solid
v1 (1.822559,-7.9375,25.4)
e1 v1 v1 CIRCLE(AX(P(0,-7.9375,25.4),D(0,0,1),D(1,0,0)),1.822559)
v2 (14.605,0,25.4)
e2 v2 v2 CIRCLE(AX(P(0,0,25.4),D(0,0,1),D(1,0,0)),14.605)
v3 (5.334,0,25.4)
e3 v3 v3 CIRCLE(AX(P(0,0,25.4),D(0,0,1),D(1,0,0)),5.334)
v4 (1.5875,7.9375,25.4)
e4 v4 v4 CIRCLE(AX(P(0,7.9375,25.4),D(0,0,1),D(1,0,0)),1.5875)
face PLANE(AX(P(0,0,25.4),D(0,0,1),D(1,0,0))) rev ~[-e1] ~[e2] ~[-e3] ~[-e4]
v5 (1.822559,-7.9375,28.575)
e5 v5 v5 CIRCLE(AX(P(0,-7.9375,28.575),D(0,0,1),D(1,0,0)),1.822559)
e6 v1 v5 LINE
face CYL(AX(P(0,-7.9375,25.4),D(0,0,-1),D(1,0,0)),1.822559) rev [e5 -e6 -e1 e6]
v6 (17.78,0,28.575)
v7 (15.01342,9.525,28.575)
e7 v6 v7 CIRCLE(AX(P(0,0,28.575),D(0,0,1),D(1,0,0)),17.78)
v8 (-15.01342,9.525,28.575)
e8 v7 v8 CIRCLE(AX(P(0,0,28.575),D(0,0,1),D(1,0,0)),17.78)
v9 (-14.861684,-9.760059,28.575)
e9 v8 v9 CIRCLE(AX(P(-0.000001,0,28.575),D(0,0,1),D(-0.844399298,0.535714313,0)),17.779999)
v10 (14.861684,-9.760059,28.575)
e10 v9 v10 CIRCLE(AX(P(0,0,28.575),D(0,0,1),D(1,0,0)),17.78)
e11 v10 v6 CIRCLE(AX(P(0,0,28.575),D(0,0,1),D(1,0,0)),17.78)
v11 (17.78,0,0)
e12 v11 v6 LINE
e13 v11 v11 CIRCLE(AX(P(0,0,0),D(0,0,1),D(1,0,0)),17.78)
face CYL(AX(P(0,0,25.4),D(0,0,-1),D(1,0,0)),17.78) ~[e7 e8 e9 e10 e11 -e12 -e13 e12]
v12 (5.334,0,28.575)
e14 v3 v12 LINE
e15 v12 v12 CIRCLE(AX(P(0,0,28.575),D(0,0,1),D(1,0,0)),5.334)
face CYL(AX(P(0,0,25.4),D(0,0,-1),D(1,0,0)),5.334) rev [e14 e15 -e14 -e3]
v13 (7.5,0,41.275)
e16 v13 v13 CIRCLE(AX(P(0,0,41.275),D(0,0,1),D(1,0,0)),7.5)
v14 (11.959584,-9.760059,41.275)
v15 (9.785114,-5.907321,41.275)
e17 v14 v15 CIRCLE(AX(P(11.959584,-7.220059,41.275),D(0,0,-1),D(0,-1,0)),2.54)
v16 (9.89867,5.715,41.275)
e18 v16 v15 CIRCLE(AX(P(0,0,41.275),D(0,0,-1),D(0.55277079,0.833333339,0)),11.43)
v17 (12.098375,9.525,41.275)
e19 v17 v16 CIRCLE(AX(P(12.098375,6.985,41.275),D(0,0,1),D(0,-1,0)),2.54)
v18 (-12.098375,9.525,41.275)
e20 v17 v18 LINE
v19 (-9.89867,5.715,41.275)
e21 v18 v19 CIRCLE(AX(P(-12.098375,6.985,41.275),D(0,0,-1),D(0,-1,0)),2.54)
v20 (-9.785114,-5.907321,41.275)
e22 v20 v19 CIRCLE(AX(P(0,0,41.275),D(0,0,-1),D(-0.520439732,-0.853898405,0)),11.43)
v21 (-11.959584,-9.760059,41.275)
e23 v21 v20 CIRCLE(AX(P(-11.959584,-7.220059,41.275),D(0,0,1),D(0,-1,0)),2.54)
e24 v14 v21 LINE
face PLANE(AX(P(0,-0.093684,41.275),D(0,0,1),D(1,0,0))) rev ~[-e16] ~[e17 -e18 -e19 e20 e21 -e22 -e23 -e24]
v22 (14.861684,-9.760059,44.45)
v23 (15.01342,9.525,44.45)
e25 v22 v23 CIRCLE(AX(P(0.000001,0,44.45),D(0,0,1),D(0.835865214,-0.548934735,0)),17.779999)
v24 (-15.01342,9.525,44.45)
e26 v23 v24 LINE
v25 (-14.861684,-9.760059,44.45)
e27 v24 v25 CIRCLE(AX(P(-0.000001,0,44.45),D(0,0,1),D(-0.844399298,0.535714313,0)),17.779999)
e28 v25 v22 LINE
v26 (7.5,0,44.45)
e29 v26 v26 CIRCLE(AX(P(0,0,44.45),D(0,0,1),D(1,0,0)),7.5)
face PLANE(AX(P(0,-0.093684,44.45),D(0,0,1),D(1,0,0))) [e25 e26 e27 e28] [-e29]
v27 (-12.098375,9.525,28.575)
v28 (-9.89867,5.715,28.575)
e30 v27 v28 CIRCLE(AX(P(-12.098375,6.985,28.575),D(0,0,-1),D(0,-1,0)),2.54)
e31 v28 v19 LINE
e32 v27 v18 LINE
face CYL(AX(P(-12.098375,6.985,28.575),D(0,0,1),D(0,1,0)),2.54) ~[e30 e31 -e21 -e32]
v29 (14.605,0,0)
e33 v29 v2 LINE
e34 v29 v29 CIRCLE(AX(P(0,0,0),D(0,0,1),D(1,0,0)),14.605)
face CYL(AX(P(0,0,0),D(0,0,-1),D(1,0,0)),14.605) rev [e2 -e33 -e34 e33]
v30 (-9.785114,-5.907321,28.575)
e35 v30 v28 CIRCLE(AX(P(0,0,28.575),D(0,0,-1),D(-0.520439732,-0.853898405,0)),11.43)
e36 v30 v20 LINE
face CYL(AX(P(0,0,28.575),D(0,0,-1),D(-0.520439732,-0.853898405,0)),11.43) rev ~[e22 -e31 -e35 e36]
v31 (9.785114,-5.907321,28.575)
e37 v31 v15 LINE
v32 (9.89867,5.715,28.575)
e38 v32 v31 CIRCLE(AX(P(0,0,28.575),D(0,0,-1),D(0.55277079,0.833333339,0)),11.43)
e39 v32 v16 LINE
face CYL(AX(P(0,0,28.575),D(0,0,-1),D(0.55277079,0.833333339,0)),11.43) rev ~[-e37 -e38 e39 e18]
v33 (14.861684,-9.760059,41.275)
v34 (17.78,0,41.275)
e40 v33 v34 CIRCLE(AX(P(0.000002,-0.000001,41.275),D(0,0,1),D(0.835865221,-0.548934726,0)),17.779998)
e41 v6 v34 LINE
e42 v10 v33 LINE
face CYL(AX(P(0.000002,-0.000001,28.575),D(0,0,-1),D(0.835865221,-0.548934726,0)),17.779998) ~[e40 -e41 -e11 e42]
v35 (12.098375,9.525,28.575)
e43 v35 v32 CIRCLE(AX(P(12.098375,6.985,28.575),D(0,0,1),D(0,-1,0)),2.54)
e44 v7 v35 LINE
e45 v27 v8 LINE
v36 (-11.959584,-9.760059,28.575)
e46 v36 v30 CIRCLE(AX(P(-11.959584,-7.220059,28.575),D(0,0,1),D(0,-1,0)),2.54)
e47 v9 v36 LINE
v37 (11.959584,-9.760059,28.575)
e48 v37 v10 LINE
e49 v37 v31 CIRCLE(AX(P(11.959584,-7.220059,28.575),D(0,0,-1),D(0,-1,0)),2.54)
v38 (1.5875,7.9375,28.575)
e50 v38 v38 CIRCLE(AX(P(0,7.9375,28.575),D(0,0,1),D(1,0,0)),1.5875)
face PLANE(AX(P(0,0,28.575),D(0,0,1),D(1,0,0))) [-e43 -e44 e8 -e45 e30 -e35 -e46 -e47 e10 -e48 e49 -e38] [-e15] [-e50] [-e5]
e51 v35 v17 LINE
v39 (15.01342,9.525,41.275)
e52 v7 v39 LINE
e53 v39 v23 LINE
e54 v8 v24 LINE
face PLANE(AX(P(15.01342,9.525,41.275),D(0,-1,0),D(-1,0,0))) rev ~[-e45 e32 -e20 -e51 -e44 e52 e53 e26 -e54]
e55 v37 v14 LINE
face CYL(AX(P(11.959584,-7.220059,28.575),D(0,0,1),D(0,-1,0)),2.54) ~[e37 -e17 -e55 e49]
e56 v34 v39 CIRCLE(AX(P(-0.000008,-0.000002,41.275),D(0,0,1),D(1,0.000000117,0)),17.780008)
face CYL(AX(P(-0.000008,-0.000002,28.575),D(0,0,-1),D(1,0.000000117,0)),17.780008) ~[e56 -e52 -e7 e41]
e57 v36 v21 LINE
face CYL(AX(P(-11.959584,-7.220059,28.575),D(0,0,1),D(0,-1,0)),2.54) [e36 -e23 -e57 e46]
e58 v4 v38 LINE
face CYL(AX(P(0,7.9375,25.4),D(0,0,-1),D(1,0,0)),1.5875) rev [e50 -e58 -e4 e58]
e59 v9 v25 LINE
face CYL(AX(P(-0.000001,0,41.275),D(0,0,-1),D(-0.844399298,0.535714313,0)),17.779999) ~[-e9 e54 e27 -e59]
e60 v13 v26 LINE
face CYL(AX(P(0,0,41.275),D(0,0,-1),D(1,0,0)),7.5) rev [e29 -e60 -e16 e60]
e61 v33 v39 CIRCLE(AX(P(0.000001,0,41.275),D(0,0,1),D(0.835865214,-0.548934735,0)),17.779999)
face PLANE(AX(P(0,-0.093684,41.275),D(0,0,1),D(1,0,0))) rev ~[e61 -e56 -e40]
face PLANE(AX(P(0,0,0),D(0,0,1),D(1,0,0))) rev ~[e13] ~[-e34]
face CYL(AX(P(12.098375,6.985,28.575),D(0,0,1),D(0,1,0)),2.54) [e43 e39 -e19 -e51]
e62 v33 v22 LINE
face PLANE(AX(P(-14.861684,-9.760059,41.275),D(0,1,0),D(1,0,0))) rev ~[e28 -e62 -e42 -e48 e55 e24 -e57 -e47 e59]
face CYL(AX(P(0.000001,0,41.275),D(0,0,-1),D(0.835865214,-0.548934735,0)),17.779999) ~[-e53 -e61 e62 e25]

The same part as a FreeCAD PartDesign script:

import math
import FreeCAD as App
import Part
import Sketcher
Q = App.Units.Quantity


def edges_at(feature, points):
    """Names of the edges that pass closest to the given points."""
    edges = feature.Shape.Edges
    near = lambda p: min(range(len(edges)), key=lambda i: edges[i].distToShape(Part.Vertex(*p))[0])
    return sorted({f"Edge{near(p) + 1}" for p in points})

doc = App.newDocument("Part")
params = doc.addObject("Spreadsheet::Sheet", "Params")
for row, (alias, value) in enumerate([
    ("sketch1_diameter", "1.4 in"),
    ("sketch1_diameter2", "1.15 in"),
    ("pad1_length", "1 in"),
    ("sketch2_diameter", "1.4 in"),
    ("sketch2_diameter2", "0.42 in"),
    ("sketch2_diameter3", "0.125 in"),
    ("pad2_length", "0.125 in"),
    ("sketch3_radius", "0.7 in"),
    ("sketch3_radius2", "0.45 in"),
    ("pad3_length", "0.5 in"),
    ("sketch4_radius", "0.7 in"),
    ("pad4_length", "0.125 in"),
    ("fillet_radius", "0.1 in"),
], start=1):
    params.set(f"A{row}", alias)
    params.set(f"B{row}", "=" + value)
    params.setAlias(f"B{row}", alias)

body = doc.addObject("PartDesign::Body", "Body")

sketch1 = doc.addObject("Sketcher::SketchObject", "Sketch")
body.addObject(sketch1)
sketch1.AttachmentSupport = (doc.XY_Plane, [""])
sketch1.MapMode = "FlatFace"
sketch1.addGeometry([
    Part.Circle(App.Vector(0, 0, 0), App.Vector(0, 0, 1), 18),
    Part.Circle(App.Vector(0, 0, 0), App.Vector(0, 0, 1), 15),
], False)
sketch1.addConstraint([
    Sketcher.Constraint("Coincident", 0, 3, -1, 1),
    Sketcher.Constraint("Coincident", 1, 3, -1, 1),
    Sketcher.Constraint("Diameter", 0, Q("1.4 in")),
    Sketcher.Constraint("Diameter", 1, Q("1.15 in")),
])
sketch1.setExpression("Constraints[2]", "Params.sketch1_diameter")
sketch1.setExpression("Constraints[3]", "Params.sketch1_diameter2")
pad1 = doc.addObject("PartDesign::Pad", "Pad")
body.addObject(pad1)
pad1.Profile = sketch1
pad1.setExpression("Length", "Params.pad1_length")

sketch2 = doc.addObject("Sketcher::SketchObject", "Sketch001")
body.addObject(sketch2)
sketch2.AttachmentSupport = (doc.XY_Plane, [""])
sketch2.MapMode = "FlatFace"
sketch2.AttachmentOffset = App.Placement(App.Vector(0, 0, 1 * 25.4), App.Rotation())
sketch2.addGeometry([
    Part.Circle(App.Vector(0, 0, 0), App.Vector(0, 0, 1), 17.8),
    Part.Circle(App.Vector(0, -7.9, 0), App.Vector(0, 0, 1), 1.8),
    Part.Circle(App.Vector(0, 0, 0), App.Vector(0, 0, 1), 5.3),
    Part.Circle(App.Vector(0, 7.9, 0), App.Vector(0, 0, 1), 1.6),
], False)
sketch2.addConstraint([
    Sketcher.Constraint("Coincident", 0, 3, -1, 1),
    Sketcher.Constraint("Coincident", 2, 3, -1, 1),
    Sketcher.Constraint("Symmetric", 1, 3, 3, 3, -1, 1),
    Sketcher.Constraint("PointOnObject", 1, 3, -2),
    Sketcher.Constraint("Diameter", 0, Q("1.4 in")),
    Sketcher.Constraint("Diameter", 2, Q("0.42 in")),
    Sketcher.Constraint("Diameter", 3, Q("0.125 in")),
    Sketcher.Constraint("Diameter", 1, Q("3.645118 mm")),
    Sketcher.Constraint("DistanceY", 1, 3, -1, 1, Q("0.3125 in")),
])
sketch2.setExpression("Constraints[4]", "Params.sketch2_diameter")
sketch2.setExpression("Constraints[5]", "Params.sketch2_diameter2")
sketch2.setExpression("Constraints[6]", "Params.sketch2_diameter3")
pad2 = doc.addObject("PartDesign::Pad", "Pad001")
body.addObject(pad2)
pad2.Profile = sketch2
pad2.setExpression("Length", "Params.pad2_length")

sketch3 = doc.addObject("Sketcher::SketchObject", "Sketch002")
body.addObject(sketch3)
sketch3.AttachmentSupport = (doc.XY_Plane, [""])
sketch3.MapMode = "FlatFace"
sketch3.AttachmentOffset = App.Placement(App.Vector(0, 0, 1.125 * 25.4), App.Rotation())
sketch3.addGeometry([
    Part.LineSegment(App.Vector(-6, 10, 0), App.Vector(-15, 10, 0)),
    Part.ArcOfCircle(Part.Circle(App.Vector(0, 0, 0), App.Vector(0, 0, 1), 18), math.radians(148), math.radians(213)),
    Part.LineSegment(App.Vector(-15, -10, 0), App.Vector(-6, -10, 0)),
    Part.ArcOfCircle(Part.Circle(App.Vector(0, 0, 0), App.Vector(0, 0, 1), 11), math.radians(124), math.radians(239)),
    Part.ArcOfCircle(Part.Circle(App.Vector(0, 0, 0), App.Vector(0, 0, 1), 18), math.radians(0), math.radians(32)),
    Part.LineSegment(App.Vector(15, 10, 0), App.Vector(6, 10, 0)),
    Part.ArcOfCircle(Part.Circle(App.Vector(0, 0, 0), App.Vector(0, 0, 1), 11), math.radians(-59), math.radians(56)),
    Part.LineSegment(App.Vector(6, -10, 0), App.Vector(15, -10, 0)),
    Part.ArcOfCircle(Part.Circle(App.Vector(0, 0, 0), App.Vector(0, 0, 1), 18), math.radians(-33), math.radians(0)),
], False)
sketch3.addConstraint([
    Sketcher.Constraint("Coincident", 0, 2, 1, 1),
    Sketcher.Constraint("Coincident", 1, 2, 2, 1),
    Sketcher.Constraint("Coincident", 2, 2, 3, 2),
    Sketcher.Constraint("Coincident", 3, 1, 0, 1),
    Sketcher.Constraint("Coincident", 4, 2, 5, 1),
    Sketcher.Constraint("Coincident", 5, 2, 6, 2),
    Sketcher.Constraint("Coincident", 6, 1, 7, 1),
    Sketcher.Constraint("Coincident", 7, 2, 8, 1),
    Sketcher.Constraint("Tangent", 8, 2, 4, 1),
    Sketcher.Constraint("Horizontal", 0),
    Sketcher.Constraint("Horizontal", 2),
    Sketcher.Constraint("Horizontal", 5),
    Sketcher.Constraint("Horizontal", 7),
    Sketcher.Constraint("Coincident", 1, 3, -1, 1),
    Sketcher.Constraint("Coincident", 3, 3, -1, 1),
    Sketcher.Constraint("Coincident", 4, 3, -1, 1),
    Sketcher.Constraint("Coincident", 6, 3, -1, 1),
    Sketcher.Constraint("Equal", 3, 6),
    Sketcher.Constraint("Equal", 1, 8),
    Sketcher.Constraint("Symmetric", 0, 2, 4, 2, -2),
    Sketcher.Constraint("PointOnObject", 8, 2, -1),
    Sketcher.Constraint("Horizontal", 2, 2, 6, 1),
    Sketcher.Constraint("Radius", 1, Q("0.7 in")),
    Sketcher.Constraint("Radius", 3, Q("0.45 in")),
    Sketcher.Constraint("DistanceY", -1, 1, 0, 2, Q("0.375 in")),
    Sketcher.Constraint("DistanceX", 2, 1, 2, 2, Q("8.913058 mm")),
])
sketch3.setExpression("Constraints[22]", "Params.sketch3_radius")
sketch3.setExpression("Constraints[23]", "Params.sketch3_radius2")
pad3 = doc.addObject("PartDesign::Pad", "Pad002")
body.addObject(pad3)
pad3.Profile = sketch3
pad3.setExpression("Length", "Params.pad3_length")

sketch4 = doc.addObject("Sketcher::SketchObject", "Sketch003")
body.addObject(sketch4)
sketch4.AttachmentSupport = (doc.XY_Plane, [""])
sketch4.MapMode = "FlatFace"
sketch4.AttachmentOffset = App.Placement(App.Vector(0, 0, 1.625 * 25.4), App.Rotation())
sketch4.addGeometry([
    Part.LineSegment(App.Vector(15, 10, 0), App.Vector(-15, 10, 0)),
    Part.ArcOfCircle(Part.Circle(App.Vector(0, 0, 0), App.Vector(0, 0, 1), 18), math.radians(148), math.radians(213)),
    Part.LineSegment(App.Vector(-15, -10, 0), App.Vector(15, -10, 0)),
    Part.ArcOfCircle(Part.Circle(App.Vector(0, 0, 0), App.Vector(0, 0, 1), 18), math.radians(-33), math.radians(32)),
    Part.Circle(App.Vector(0, 0, 0), App.Vector(0, 0, 1), 8),
], False)
sketch4.addConstraint([
    Sketcher.Constraint("Coincident", 0, 2, 1, 1),
    Sketcher.Constraint("Coincident", 1, 2, 2, 1),
    Sketcher.Constraint("Coincident", 2, 2, 3, 1),
    Sketcher.Constraint("Coincident", 3, 2, 0, 1),
    Sketcher.Constraint("Horizontal", 0),
    Sketcher.Constraint("Horizontal", 2),
    Sketcher.Constraint("Coincident", 1, 3, -1, 1),
    Sketcher.Constraint("Coincident", 3, 3, -1, 1),
    Sketcher.Constraint("Coincident", 4, 3, -1, 1),
    Sketcher.Constraint("Equal", 1, 3),
    Sketcher.Constraint("Radius", 1, Q("0.7 in")),
    Sketcher.Constraint("Diameter", 4, Q("15 mm")),
    Sketcher.Constraint("DistanceY", -1, 1, 0, 2, Q("0.375 in")),
    Sketcher.Constraint("DistanceX", 2, 1, 2, 2, Q("29.723368 mm")),
])
sketch4.setExpression("Constraints[10]", "Params.sketch4_radius")
pad4 = doc.addObject("PartDesign::Pad", "Pad003")
body.addObject(pad4)
pad4.Profile = sketch4
pad4.setExpression("Length", "Params.pad4_length")
doc.recompute()

fillet = doc.addObject("PartDesign::Fillet", "Fillet")
body.addObject(fillet)
fillet.Base = (pad4, edges_at(pad4, [
    (-5.949, -9.76, 34.925),
    (5.949, -9.76, 34.925),
    (-6.318, 9.525, 34.925),
    (6.318, 9.525, 34.925),
]))
fillet.setExpression("Radius", "Params.fillet_radius")

doc.recompute()
